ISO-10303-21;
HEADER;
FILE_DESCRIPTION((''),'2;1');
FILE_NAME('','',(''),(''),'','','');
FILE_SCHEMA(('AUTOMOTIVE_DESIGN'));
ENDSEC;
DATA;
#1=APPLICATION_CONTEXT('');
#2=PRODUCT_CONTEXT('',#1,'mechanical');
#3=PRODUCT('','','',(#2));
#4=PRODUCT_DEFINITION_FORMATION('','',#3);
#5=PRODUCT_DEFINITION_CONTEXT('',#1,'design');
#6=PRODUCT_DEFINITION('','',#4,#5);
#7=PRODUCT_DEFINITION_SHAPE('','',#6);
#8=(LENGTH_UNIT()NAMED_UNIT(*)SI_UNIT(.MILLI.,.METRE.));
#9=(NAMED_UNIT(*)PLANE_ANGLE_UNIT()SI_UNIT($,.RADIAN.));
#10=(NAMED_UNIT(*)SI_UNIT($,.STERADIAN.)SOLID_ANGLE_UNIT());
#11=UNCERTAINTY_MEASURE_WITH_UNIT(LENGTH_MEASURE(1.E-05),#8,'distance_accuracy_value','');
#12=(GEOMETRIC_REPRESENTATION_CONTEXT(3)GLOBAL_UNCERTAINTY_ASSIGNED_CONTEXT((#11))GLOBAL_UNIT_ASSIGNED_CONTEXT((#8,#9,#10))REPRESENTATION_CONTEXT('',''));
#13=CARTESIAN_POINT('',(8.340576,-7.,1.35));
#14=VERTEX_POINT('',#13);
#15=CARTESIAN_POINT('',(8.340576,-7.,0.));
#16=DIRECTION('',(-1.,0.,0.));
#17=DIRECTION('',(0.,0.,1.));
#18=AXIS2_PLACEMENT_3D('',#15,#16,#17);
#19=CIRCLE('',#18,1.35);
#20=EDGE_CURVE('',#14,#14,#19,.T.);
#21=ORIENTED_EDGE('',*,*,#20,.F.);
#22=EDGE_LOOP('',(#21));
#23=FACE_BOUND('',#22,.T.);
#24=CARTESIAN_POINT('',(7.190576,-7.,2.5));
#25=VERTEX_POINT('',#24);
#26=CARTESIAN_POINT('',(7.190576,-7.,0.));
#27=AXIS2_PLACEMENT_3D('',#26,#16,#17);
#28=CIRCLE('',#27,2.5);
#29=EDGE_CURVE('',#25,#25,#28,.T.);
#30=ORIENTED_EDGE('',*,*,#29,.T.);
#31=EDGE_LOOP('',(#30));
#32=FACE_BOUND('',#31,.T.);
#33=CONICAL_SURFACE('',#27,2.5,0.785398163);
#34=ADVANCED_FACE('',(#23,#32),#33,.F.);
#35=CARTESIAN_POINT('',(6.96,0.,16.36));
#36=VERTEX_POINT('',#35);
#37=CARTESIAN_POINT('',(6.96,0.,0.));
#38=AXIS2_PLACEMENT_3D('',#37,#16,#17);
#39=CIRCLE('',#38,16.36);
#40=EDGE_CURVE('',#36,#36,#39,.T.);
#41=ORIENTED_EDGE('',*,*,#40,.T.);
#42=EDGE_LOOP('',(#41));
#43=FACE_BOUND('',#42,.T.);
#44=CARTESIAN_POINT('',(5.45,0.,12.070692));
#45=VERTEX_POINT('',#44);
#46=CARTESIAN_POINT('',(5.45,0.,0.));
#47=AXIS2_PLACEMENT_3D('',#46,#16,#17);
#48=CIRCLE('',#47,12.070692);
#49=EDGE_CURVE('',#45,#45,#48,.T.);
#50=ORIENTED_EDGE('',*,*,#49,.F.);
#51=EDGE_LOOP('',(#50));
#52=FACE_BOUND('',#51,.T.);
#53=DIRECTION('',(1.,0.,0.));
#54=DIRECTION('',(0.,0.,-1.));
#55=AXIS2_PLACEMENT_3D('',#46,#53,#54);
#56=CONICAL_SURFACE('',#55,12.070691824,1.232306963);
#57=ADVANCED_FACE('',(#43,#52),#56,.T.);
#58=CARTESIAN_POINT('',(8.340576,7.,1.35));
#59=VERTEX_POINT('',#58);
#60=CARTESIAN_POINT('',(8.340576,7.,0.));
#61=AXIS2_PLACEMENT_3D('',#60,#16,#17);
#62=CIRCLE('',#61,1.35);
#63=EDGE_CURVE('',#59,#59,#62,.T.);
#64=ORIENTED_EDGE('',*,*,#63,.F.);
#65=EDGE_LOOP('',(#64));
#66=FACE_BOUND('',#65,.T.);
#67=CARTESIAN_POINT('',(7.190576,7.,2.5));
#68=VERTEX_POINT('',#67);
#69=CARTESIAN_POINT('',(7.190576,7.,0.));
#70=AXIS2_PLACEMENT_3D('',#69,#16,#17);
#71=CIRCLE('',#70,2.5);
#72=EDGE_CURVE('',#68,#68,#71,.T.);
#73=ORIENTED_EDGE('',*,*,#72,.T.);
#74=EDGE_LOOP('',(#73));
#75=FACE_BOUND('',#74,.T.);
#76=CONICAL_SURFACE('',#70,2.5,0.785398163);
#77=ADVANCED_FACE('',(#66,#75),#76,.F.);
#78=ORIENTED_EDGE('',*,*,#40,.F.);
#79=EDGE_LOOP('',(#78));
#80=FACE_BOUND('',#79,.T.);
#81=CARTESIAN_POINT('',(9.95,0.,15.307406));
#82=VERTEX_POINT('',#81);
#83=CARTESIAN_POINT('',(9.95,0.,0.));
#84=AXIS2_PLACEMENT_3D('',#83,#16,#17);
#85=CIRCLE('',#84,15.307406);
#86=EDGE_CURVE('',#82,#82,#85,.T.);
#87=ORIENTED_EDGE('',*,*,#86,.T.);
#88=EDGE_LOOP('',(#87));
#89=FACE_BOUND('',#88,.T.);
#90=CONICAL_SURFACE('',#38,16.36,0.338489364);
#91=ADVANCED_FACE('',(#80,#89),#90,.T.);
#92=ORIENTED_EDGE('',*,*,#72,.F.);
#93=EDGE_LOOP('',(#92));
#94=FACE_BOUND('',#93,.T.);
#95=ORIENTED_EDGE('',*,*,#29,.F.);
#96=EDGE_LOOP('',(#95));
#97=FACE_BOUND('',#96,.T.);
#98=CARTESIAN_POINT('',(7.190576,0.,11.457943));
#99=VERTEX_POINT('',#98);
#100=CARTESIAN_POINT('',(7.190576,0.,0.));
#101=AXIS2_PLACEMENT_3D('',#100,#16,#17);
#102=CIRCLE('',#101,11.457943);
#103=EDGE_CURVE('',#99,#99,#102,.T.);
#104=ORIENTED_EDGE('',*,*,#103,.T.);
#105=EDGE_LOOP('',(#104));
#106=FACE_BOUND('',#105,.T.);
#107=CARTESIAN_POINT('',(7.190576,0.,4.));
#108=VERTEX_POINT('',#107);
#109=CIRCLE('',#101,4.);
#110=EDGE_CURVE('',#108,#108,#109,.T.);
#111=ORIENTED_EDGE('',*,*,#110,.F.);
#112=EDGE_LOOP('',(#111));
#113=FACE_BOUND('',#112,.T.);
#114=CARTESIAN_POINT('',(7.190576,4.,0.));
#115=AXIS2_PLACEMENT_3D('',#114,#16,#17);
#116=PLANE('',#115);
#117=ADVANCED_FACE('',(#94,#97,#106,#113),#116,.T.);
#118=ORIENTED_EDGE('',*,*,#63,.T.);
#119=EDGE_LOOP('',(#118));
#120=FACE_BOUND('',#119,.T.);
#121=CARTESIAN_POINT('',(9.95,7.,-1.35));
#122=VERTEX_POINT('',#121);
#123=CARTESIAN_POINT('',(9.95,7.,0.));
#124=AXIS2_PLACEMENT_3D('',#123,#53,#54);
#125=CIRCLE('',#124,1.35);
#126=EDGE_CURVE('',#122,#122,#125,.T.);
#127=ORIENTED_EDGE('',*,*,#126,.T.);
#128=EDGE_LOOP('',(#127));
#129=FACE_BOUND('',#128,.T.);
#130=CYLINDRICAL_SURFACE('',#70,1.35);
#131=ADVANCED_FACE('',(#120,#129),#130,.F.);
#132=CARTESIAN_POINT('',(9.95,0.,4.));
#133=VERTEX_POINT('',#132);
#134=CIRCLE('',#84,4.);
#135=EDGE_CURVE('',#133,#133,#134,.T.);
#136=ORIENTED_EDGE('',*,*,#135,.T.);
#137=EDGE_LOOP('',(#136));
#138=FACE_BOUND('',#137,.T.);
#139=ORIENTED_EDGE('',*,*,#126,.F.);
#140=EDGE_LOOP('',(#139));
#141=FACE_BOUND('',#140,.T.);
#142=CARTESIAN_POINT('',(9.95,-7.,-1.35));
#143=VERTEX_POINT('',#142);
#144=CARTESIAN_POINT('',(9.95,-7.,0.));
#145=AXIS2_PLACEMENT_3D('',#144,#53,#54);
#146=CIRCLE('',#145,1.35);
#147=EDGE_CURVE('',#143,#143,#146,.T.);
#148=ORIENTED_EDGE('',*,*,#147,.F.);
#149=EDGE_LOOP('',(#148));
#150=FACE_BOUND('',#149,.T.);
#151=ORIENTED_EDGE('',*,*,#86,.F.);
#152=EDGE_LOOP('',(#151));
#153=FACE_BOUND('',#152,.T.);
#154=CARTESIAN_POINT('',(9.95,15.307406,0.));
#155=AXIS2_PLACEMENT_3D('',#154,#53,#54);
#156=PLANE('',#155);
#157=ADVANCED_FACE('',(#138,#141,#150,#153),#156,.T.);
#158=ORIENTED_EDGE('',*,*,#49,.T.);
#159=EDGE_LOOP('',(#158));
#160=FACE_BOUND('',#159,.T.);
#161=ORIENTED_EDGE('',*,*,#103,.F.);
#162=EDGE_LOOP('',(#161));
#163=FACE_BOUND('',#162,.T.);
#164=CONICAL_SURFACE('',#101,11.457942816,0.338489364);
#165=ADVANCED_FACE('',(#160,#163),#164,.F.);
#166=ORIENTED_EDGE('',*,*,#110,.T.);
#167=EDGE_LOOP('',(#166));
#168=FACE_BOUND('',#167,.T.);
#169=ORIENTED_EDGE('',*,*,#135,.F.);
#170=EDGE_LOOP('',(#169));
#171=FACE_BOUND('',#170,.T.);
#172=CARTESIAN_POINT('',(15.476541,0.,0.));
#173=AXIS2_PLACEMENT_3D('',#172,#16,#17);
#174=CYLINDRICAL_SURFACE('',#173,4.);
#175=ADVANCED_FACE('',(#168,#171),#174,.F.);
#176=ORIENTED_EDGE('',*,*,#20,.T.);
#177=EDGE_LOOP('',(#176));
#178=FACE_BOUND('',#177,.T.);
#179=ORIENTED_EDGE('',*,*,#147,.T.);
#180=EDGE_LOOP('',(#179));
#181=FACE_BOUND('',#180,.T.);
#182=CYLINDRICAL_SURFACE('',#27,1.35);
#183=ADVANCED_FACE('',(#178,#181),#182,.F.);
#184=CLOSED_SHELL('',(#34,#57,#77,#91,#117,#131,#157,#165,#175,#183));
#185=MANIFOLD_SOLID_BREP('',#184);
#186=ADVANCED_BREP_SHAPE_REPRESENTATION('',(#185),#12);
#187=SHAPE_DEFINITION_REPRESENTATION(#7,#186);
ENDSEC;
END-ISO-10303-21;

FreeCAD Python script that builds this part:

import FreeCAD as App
import Part
import Sketcher
from FreeCAD import Vector

doc = App.newDocument("Part")
body = doc.addObject("PartDesign::Body", "Body")

# Sketch on XY plane
sketch1 = doc.addObject("Sketcher::SketchObject", "Sketch")
body.addObject(sketch1)
sketch1.AttachmentSupport = (doc.XY_Plane, [""])
sketch1.MapMode = "FlatFace"
sketch1.addGeometry(Part.LineSegment(Vector(9.95, 4, 0), Vector(7.190576, 4, 0)), False)
sketch1.addGeometry(Part.LineSegment(Vector(7.190576, 4, 0), Vector(7.190576, 11.457943, 0)), False)
sketch1.addGeometry(Part.LineSegment(Vector(7.190576, 11.457943, 0), Vector(5.45, 12.070692, 0)), False)
sketch1.addGeometry(Part.LineSegment(Vector(5.45, 12.070692, 0), Vector(6.96, 16.36, 0)), False)
sketch1.addGeometry(Part.LineSegment(Vector(6.96, 16.36, 0), Vector(9.95, 15.307406, 0)), False)
sketch1.addGeometry(Part.LineSegment(Vector(9.95, 15.307406, 0), Vector(9.95, 4, 0)), False)
sketch1.addConstraint(Sketcher.Constraint("Coincident", 0, 2, 1, 1))
sketch1.addConstraint(Sketcher.Constraint("Coincident", 1, 2, 2, 1))
sketch1.addConstraint(Sketcher.Constraint("Coincident", 2, 2, 3, 1))
sketch1.addConstraint(Sketcher.Constraint("Coincident", 3, 2, 4, 1))
sketch1.addConstraint(Sketcher.Constraint("Coincident", 4, 2, 5, 1))
sketch1.addConstraint(Sketcher.Constraint("Coincident", 5, 2, 0, 1))
sketch1.addConstraint(Sketcher.Constraint("Horizontal", 0))
sketch1.addConstraint(Sketcher.Constraint("Vertical", 1))
sketch1.addConstraint(Sketcher.Constraint("Vertical", 5))
sketch1.addConstraint(Sketcher.Constraint("Perpendicular", 2, 3))
sketch1.addConstraint(Sketcher.Constraint("Perpendicular", 3, 4))
sketch1.addConstraint(Sketcher.Constraint("DistanceY", -1, 1, 0, 2, 4.0))
sketch1.addConstraint(Sketcher.Constraint("DistanceX", 2, 2, 4, 2, 4.5))
sketch1.addConstraint(Sketcher.Constraint("DistanceX", -1, 1, 2, 2, 5.45))
sketch1.addConstraint(Sketcher.Constraint("DistanceX", -1, 1, 3, 2, 6.96))
sketch1.addConstraint(Sketcher.Constraint("DistanceY", -1, 1, 3, 2, 16.36))
sketch1.addConstraint(Sketcher.Constraint("Distance", 2, 1.845282))
sketch1.addConstraint(Sketcher.Constraint("DistanceX", 0, 2, 0, 1, 2.759424))
revolution = doc.addObject("PartDesign::Revolution", "Revolution")
body.addObject(revolution)
revolution.Profile = sketch1
revolution.ReferenceAxis = (sketch1, ["H_Axis"])
revolution.Angle = 360

# Sketch on YZ plane
sketch2 = doc.addObject("Sketcher::SketchObject", "Sketch001")
body.addObject(sketch2)
sketch2.AttachmentSupport = (doc.YZ_Plane, [""])
sketch2.MapMode = "FlatFace"
sketch2.AttachmentOffset = App.Placement(Vector(0, 0, 7.190576), App.Rotation())
sketch2.addGeometry(Part.Circle(Vector(7, 0, 0), Vector(0, 0, 1), 1.35), False)
sketch2.addGeometry(Part.Circle(Vector(-7, 0, 0), Vector(0, 0, 1), 1.35), False)
sketch2.addConstraint(Sketcher.Constraint("Equal", 0, 1))
sketch2.addConstraint(Sketcher.Constraint("Symmetric", 0, 3, 1, 3, -1, 1))
sketch2.addConstraint(Sketcher.Constraint("PointOnObject", 0, 3, -1))
sketch2.addConstraint(Sketcher.Constraint("Diameter", 0, 2.7))
sketch2.addConstraint(Sketcher.Constraint("DistanceX", -1, 1, 0, 3, 7.0))
doc.recompute()
hole = doc.addObject("PartDesign::Hole", "Hole")
body.addObject(hole)
hole.Profile = sketch2
hole.ThreadType = "None"
hole.Diameter = 2.7
hole.DepthType = "ThroughAll"
hole.HoleCutType = "Countersink"
hole.HoleCutDiameter = 5
hole.HoleCutCountersinkAngle = 90
hole.Reversed = True

doc.recompute()
